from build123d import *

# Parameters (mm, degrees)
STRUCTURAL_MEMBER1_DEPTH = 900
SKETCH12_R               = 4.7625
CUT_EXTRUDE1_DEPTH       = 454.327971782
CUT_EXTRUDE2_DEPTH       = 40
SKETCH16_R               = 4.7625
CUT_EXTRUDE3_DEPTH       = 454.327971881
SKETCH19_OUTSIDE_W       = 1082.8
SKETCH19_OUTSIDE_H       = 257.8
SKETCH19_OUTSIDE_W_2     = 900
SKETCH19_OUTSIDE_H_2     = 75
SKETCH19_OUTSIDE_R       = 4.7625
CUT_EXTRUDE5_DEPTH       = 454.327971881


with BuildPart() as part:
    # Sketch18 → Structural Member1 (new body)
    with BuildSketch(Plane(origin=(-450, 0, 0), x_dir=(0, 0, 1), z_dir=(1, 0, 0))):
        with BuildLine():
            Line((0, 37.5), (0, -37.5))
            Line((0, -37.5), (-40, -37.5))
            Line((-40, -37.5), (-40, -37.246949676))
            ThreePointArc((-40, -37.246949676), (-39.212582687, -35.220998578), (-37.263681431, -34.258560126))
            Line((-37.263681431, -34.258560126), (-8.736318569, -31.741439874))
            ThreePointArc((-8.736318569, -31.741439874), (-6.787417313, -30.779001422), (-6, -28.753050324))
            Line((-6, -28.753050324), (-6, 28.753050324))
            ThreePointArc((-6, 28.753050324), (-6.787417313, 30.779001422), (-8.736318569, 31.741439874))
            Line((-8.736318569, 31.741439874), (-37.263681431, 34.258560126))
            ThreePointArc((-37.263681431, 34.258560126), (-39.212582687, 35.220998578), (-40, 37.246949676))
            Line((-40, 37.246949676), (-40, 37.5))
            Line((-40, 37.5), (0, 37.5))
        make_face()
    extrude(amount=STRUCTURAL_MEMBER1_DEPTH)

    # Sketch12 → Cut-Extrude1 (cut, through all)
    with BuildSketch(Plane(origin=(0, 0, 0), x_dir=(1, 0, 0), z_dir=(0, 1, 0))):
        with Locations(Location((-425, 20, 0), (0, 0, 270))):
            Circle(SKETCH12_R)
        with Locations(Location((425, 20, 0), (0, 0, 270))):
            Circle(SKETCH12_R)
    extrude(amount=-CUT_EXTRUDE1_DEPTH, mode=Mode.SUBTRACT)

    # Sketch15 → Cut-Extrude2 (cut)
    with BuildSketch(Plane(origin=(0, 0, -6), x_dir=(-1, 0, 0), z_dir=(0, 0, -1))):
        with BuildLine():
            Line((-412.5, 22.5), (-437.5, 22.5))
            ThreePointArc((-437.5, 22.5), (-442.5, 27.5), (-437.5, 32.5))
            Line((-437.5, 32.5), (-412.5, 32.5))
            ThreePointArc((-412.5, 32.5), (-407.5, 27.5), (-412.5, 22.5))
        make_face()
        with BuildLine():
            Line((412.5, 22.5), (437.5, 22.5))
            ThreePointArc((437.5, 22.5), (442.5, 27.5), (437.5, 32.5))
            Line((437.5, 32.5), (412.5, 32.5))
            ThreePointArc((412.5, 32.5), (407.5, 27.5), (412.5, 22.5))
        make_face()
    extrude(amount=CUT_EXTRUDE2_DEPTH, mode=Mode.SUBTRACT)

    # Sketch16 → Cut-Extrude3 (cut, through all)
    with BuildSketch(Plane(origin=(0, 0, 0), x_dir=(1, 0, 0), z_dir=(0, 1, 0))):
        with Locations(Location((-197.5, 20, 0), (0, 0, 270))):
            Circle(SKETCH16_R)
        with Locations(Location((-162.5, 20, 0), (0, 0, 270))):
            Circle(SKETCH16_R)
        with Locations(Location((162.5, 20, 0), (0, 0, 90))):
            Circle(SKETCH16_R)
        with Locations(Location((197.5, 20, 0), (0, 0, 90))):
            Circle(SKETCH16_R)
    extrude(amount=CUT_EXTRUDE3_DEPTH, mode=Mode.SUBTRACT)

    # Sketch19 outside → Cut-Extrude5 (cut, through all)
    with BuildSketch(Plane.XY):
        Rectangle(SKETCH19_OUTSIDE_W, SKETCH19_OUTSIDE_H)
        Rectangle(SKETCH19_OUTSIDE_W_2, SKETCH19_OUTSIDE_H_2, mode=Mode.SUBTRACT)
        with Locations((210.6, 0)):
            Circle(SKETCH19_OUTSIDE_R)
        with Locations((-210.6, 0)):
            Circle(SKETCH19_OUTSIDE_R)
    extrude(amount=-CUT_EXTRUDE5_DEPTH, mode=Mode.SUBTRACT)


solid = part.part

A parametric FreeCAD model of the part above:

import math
import FreeCAD as App
import Part
import Sketcher
Q = App.Units.Quantity

doc = App.newDocument("Part")
body = doc.addObject("PartDesign::Body", "Body")

sketch1 = body.newObject("Sketcher::SketchObject", "Sketch")
sketch1.AttachmentSupport = (doc.getObject("YZ_Plane"), [""])
sketch1.MapMode = "FlatFace"
sketch1.AttachmentOffset = App.Placement(App.Vector(0, 0, -450), App.Rotation())
sketch1.addGeometry([
    Part.LineSegment(App.Vector(37.5, 0, 0), App.Vector(-37.5, 0, 0)),
    Part.LineSegment(App.Vector(-37.5, 0, 0), App.Vector(-37.5, -40, 0)),
    Part.LineSegment(App.Vector(-37.5, -40, 0), App.Vector(-37.25, -40, 0)),
    Part.ArcOfCircle(Part.Circle(App.Vector(-37.25, -37, 0), App.Vector(0, 0, 1), 3), math.radians(-90), math.radians(-5)),
    Part.LineSegment(App.Vector(-34.26, -37.26, 0), App.Vector(-31.74, -8.74, 0)),
    Part.ArcOfCircle(Part.Circle(App.Vector(-28.75, -9, 0), App.Vector(0, 0, 1), 3), math.radians(90), math.radians(175)),
    Part.LineSegment(App.Vector(-28.75, -6, 0), App.Vector(28.75, -6, 0)),
    Part.ArcOfCircle(Part.Circle(App.Vector(28.75, -9, 0), App.Vector(0, 0, 1), 3), math.radians(5), math.radians(90)),
    Part.LineSegment(App.Vector(31.74, -8.74, 0), App.Vector(34.26, -37.26, 0)),
    Part.ArcOfCircle(Part.Circle(App.Vector(37.25, -37, 0), App.Vector(0, 0, 1), 3), math.radians(-175), math.radians(-90)),
    Part.LineSegment(App.Vector(37.25, -40, 0), App.Vector(37.5, -40, 0)),
    Part.LineSegment(App.Vector(37.5, -40, 0), App.Vector(37.5, 0, 0)),
], False)
sketch1.addConstraint([
    Sketcher.Constraint("Coincident", 0, 2, 1, 1),
    Sketcher.Constraint("Coincident", 1, 2, 2, 1),
    Sketcher.Constraint("Tangent", 2, 2, 3, 1),
    Sketcher.Constraint("Tangent", 3, 2, 4, 1),
    Sketcher.Constraint("Tangent", 4, 2, 5, 2),
    Sketcher.Constraint("Tangent", 5, 1, 6, 1),
    Sketcher.Constraint("Tangent", 6, 2, 7, 2),
    Sketcher.Constraint("Tangent", 7, 1, 8, 1),
    Sketcher.Constraint("Tangent", 8, 2, 9, 1),
    Sketcher.Constraint("Tangent", 9, 2, 10, 1),
    Sketcher.Constraint("Coincident", 10, 2, 11, 1),
    Sketcher.Constraint("Coincident", 11, 2, 0, 1),
    Sketcher.Constraint("Horizontal", 0),
    Sketcher.Constraint("Vertical", 1),
    Sketcher.Constraint("Horizontal", 2),
    Sketcher.Constraint("Horizontal", 6),
    Sketcher.Constraint("Horizontal", 10),
    Sketcher.Constraint("Vertical", 11),
    Sketcher.Constraint("Equal", 3, 5),
    Sketcher.Constraint("Equal", 5, 7),
    Sketcher.Constraint("Equal", 7, 9),
    Sketcher.Constraint("Symmetric", 0, 2, 11, 2, -1, 1),
    Sketcher.Constraint("Symmetric", 3, 3, 9, 3, -2),
    Sketcher.Constraint("Horizontal", 4, 2, 7, 1),
    Sketcher.Constraint("Radius", 3, Q("3 mm")),
    Sketcher.Constraint("DistanceX", 0, 2, 0, 1, Q("75 mm")),
    Sketcher.Constraint("DistanceY", 1, 2, 1, 1, Q("40 mm")),
    Sketcher.Constraint("DistanceY", 5, 3, -1, 1, Q("9 mm")),
    Sketcher.Constraint("DistanceX", 3, 3, 7, 3, Q("66 mm")),
    Sketcher.Constraint("DistanceX", 6, 1, 6, 2, Q("57.506101 mm")),
])
pad1 = body.newObject("PartDesign::Pad", "Pad")
pad1.Profile = sketch1
pad1.Length = 900

sketch2 = body.newObject("Sketcher::SketchObject", "Sketch001")
sketch2.AttachmentSupport = (doc.getObject("XZ_Plane"), [""])
sketch2.MapMode = "FlatFace"
sketch2.addGeometry([
    Part.Circle(App.Vector(-425, -20, 0), App.Vector(0, 0, 1), 4.8),
    Part.Circle(App.Vector(425, -20, 0), App.Vector(0, 0, 1), 4.8),
], False)
sketch2.addConstraint([
    Sketcher.Constraint("Equal", 0, 1),
    Sketcher.Constraint("Symmetric", 0, 3, 1, 3, -2),
    Sketcher.Constraint("Diameter", 0, Q("9.525 mm")),
    Sketcher.Constraint("DistanceX", 0, 3, -1, 1, Q("425 mm")),
    Sketcher.Constraint("DistanceY", 0, 3, -1, 1, Q("20 mm")),
])
pocket1 = body.newObject("PartDesign::Pocket", "Pocket")
pocket1.Profile = sketch2
pocket1.Type = "ThroughAll"
pocket1.Reversed = True

sketch3 = body.newObject("Sketcher::SketchObject", "Sketch002")
sketch3.AttachmentSupport = (doc.getObject("XY_Plane"), [""])
sketch3.MapMode = "FlatFace"
sketch3.AttachmentOffset = App.Placement(App.Vector(0, 0, -6), App.Rotation())
sketch3.addGeometry([
    Part.LineSegment(App.Vector(438, 22, 0), App.Vector(412, 22, 0)),
    Part.ArcOfCircle(Part.Circle(App.Vector(412, 28, 0), App.Vector(0, 0, 1), 5), math.radians(90), math.radians(270)),
    Part.LineSegment(App.Vector(412, 32, 0), App.Vector(438, 32, 0)),
    Part.ArcOfCircle(Part.Circle(App.Vector(438, 28, 0), App.Vector(0, 0, 1), 5), math.radians(-90), math.radians(90)),
    Part.LineSegment(App.Vector(-412, 22, 0), App.Vector(-438, 22, 0)),
    Part.ArcOfCircle(Part.Circle(App.Vector(-438, 28, 0), App.Vector(0, 0, 1), 5), math.radians(90), math.radians(270)),
    Part.LineSegment(App.Vector(-438, 32, 0), App.Vector(-412, 32, 0)),
    Part.ArcOfCircle(Part.Circle(App.Vector(-412, 28, 0), App.Vector(0, 0, 1), 5), math.radians(-90), math.radians(90)),
], False)
sketch3.addConstraint([
    Sketcher.Constraint("Tangent", 0, 2, 1, 2),
    Sketcher.Constraint("Tangent", 1, 1, 2, 1),
    Sketcher.Constraint("Tangent", 2, 2, 3, 2),
    Sketcher.Constraint("Tangent", 3, 1, 0, 1),
    Sketcher.Constraint("Tangent", 4, 2, 5, 2),
    Sketcher.Constraint("Tangent", 5, 1, 6, 1),
    Sketcher.Constraint("Tangent", 6, 2, 7, 2),
    Sketcher.Constraint("Tangent", 7, 1, 4, 1),
    Sketcher.Constraint("Horizontal", 0),
    Sketcher.Constraint("Horizontal", 2),
    Sketcher.Constraint("Horizontal", 4),
    Sketcher.Constraint("Horizontal", 6),
    Sketcher.Constraint("Equal", 3, 5),
    Sketcher.Constraint("Symmetric", 3, 3, 5, 3, -2),
    Sketcher.Constraint("Equal", 2, 4),
    Sketcher.Constraint("Radius", 1, Q("5 mm")),
    Sketcher.Constraint("DistanceX", 0, 2, 0, 1, Q("25 mm")),
    Sketcher.Constraint("DistanceX", 5, 3, 1, 3, Q("850 mm")),
    Sketcher.Constraint("DistanceY", -1, 1, 1, 3, Q("27.5 mm")),
])
pocket2 = body.newObject("PartDesign::Pocket", "Pocket001")
pocket2.Profile = sketch3
pocket2.Length = 40

sketch4 = body.newObject("Sketcher::SketchObject", "Sketch003")
sketch4.AttachmentSupport = (doc.getObject("XZ_Plane"), [""])
sketch4.MapMode = "FlatFace"
sketch4.addGeometry([
    Part.Circle(App.Vector(-197.5, -20, 0), App.Vector(0, 0, 1), 4.8),
    Part.Circle(App.Vector(-162.5, -20, 0), App.Vector(0, 0, 1), 4.8),
    Part.Circle(App.Vector(162.5, -20, 0), App.Vector(0, 0, 1), 4.8),
    Part.Circle(App.Vector(197.5, -20, 0), App.Vector(0, 0, 1), 4.8),
], False)
sketch4.addConstraint([
    Sketcher.Constraint("Equal", 0, 1),
    Sketcher.Constraint("Equal", 1, 2),
    Sketcher.Constraint("Equal", 2, 3),
    Sketcher.Constraint("Symmetric", 1, 3, 2, 3, -2),
    Sketcher.Constraint("Symmetric", 0, 3, 3, 3, -2),
    Sketcher.Constraint("Horizontal", 0, 3, 1, 3),
    Sketcher.Constraint("Diameter", 0, Q("9.525 mm")),
    Sketcher.Constraint("DistanceY", 0, 3, -1, 1, Q("20 mm")),
    Sketcher.Constraint("DistanceX", 0, 3, 1, 3, Q("35 mm")),
    Sketcher.Constraint("DistanceX", 1, 3, 2, 3, Q("325 mm")),
])
pocket3 = body.newObject("PartDesign::Pocket", "Pocket002")
pocket3.Profile = sketch4
pocket3.Type = "ThroughAll"

sketch5 = body.newObject("Sketcher::SketchObject", "Sketch004")
sketch5.AttachmentSupport = (doc.getObject("XY_Plane"), [""])
sketch5.MapMode = "FlatFace"
sketch5.addGeometry([
    Part.LineSegment(App.Vector(-541.4, 128.9, 0), App.Vector(-541.4, -128.9, 0)),
    Part.LineSegment(App.Vector(-541.4, -128.9, 0), App.Vector(541.4, -128.9, 0)),
    Part.LineSegment(App.Vector(541.4, -128.9, 0), App.Vector(541.4, 128.9, 0)),
    Part.LineSegment(App.Vector(541.4, 128.9, 0), App.Vector(-541.4, 128.9, 0)),
    Part.LineSegment(App.Vector(450, -37.5, 0), App.Vector(-450, -37.5, 0)),
    Part.LineSegment(App.Vector(-450, -37.5, 0), App.Vector(-450, 37.5, 0)),
    Part.LineSegment(App.Vector(-450, 37.5, 0), App.Vector(450, 37.5, 0)),
    Part.LineSegment(App.Vector(450, 37.5, 0), App.Vector(450, -37.5, 0)),
    Part.Circle(App.Vector(210.6, 0, 0), App.Vector(0, 0, 1), 4.8),
    Part.Circle(App.Vector(-210.6, 0, 0), App.Vector(0, 0, 1), 4.8),
], False)
sketch5.addConstraint([
    Sketcher.Constraint("Coincident", 0, 2, 1, 1),
    Sketcher.Constraint("Coincident", 1, 2, 2, 1),
    Sketcher.Constraint("Coincident", 2, 2, 3, 1),
    Sketcher.Constraint("Coincident", 3, 2, 0, 1),
    Sketcher.Constraint("Coincident", 4, 2, 5, 1),
    Sketcher.Constraint("Coincident", 5, 2, 6, 1),
    Sketcher.Constraint("Coincident", 6, 2, 7, 1),
    Sketcher.Constraint("Coincident", 7, 2, 4, 1),
    Sketcher.Constraint("Vertical", 0),
    Sketcher.Constraint("Horizontal", 1),
    Sketcher.Constraint("Vertical", 2),
    Sketcher.Constraint("Horizontal", 3),
    Sketcher.Constraint("Horizontal", 4),
    Sketcher.Constraint("Vertical", 5),
    Sketcher.Constraint("Horizontal", 6),
    Sketcher.Constraint("Vertical", 7),
    Sketcher.Constraint("Equal", 8, 9),
    Sketcher.Constraint("Symmetric", 8, 3, 9, 3, -1, 1),
    Sketcher.Constraint("Symmetric", 0, 2, 2, 2, -1, 1),
    Sketcher.Constraint("Symmetric", 4, 2, 6, 2, -1, 1),
    Sketcher.Constraint("PointOnObject", 8, 3, -1),
    Sketcher.Constraint("DistanceX", 4, 2, 4, 1, Q("900 mm")),
    Sketcher.Constraint("DistanceY", 5, 1, 5, 2, Q("75 mm")),
    Sketcher.Constraint("Diameter", 8, Q("9.525 mm")),
    Sketcher.Constraint("DistanceX", 1, 1, 1, 2, Q("1082.8 mm")),
    Sketcher.Constraint("DistanceY", 0, 2, 0, 1, Q("257.8 mm")),
    Sketcher.Constraint("DistanceX", 0, 2, 8, 3, Q("752 mm")),
])
pocket4 = body.newObject("PartDesign::Pocket", "Pocket003")
pocket4.Profile = sketch5
pocket4.Type = "ThroughAll"

doc.recompute()
